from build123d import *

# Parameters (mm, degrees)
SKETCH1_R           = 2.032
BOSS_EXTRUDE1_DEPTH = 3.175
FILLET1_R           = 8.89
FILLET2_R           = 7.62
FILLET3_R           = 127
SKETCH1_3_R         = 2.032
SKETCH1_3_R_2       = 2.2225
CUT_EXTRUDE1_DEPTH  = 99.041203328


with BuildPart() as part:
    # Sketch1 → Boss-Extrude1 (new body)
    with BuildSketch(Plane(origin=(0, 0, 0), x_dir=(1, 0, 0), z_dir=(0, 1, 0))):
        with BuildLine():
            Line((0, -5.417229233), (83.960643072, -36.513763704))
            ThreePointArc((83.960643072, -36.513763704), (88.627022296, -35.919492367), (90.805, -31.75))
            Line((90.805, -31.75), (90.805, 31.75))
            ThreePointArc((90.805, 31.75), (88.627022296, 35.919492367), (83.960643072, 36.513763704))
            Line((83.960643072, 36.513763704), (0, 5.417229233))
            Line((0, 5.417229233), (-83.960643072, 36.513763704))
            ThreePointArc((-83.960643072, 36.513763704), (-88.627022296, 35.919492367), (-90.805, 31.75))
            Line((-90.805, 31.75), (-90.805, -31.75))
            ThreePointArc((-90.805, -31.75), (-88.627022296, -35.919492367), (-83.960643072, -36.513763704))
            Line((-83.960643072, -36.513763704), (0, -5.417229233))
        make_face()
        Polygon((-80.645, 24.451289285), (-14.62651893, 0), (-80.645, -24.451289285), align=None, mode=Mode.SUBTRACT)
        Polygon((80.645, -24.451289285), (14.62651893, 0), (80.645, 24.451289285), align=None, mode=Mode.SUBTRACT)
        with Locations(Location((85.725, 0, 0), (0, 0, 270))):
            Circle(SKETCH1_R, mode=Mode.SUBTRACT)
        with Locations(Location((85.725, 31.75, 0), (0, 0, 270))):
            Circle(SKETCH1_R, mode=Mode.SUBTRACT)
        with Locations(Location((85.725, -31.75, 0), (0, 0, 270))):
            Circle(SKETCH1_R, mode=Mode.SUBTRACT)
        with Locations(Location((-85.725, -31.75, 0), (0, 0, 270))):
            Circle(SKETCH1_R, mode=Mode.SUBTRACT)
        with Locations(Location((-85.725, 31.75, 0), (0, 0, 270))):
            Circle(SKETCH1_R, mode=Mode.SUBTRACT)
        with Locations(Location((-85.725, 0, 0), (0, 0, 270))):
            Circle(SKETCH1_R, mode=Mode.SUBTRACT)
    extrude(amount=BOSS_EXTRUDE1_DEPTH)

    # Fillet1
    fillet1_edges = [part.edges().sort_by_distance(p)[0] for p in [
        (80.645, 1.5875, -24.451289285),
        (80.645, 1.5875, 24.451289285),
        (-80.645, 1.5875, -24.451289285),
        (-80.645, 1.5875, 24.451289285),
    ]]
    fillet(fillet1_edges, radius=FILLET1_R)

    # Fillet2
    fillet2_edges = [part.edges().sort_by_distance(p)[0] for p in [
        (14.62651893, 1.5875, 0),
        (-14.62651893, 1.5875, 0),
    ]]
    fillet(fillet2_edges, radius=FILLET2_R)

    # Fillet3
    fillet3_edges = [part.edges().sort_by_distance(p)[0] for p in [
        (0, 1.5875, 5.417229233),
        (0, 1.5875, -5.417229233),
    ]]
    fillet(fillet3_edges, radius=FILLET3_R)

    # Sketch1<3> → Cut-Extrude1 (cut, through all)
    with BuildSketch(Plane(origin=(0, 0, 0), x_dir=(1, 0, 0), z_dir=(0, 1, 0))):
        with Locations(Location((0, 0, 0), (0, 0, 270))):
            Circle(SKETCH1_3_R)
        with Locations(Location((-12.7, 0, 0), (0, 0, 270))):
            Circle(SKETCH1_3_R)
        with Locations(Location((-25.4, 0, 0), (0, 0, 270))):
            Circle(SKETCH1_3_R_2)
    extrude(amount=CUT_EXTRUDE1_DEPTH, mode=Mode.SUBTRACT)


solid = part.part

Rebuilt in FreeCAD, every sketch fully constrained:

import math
import FreeCAD as App
import Part
import Sketcher

V = App.Vector
Q = App.Units.Quantity


def edges_at(feature, points):
    """Names of the edges that pass closest to the given points."""
    edges = feature.Shape.Edges
    near = lambda p: min(range(len(edges)), key=lambda i: edges[i].distToShape(Part.Vertex(*p))[0])
    return sorted({f"Edge{near(p) + 1}" for p in points})

doc = App.newDocument("Part")
body = doc.addObject("PartDesign::Body", "Body")

# Sketch on XZ plane
sketch1 = body.newObject("Sketcher::SketchObject", "Sketch")
sketch1.AttachmentSupport = (doc.getObject("XZ_Plane"), [""])
sketch1.MapMode = "FlatFace"
sketch1.addGeometry([
    Part.LineSegment(V(0, 5.4, 0), V(84, 36.5, 0)),  # 0
    Part.ArcOfCircle(Part.Circle(V(85.7, 31.8, 0), V(0, 0, 1), 5.1), math.radians(0), math.radians(110)),  # 1
    Part.LineSegment(V(90.8, 31.8, 0), V(90.8, -31.8, 0)),  # 2
    Part.ArcOfCircle(Part.Circle(V(85.7, -31.8, 0), V(0, 0, 1), 5.1), math.radians(-110), math.radians(0)),  # 3
    Part.LineSegment(V(84, -36.5, 0), V(0, -5.4, 0)),  # 4
    Part.LineSegment(V(0, -5.4, 0), V(-84, -36.5, 0)),  # 5
    Part.ArcOfCircle(Part.Circle(V(-85.7, -31.8, 0), V(0, 0, 1), 5.1), math.radians(180), math.radians(290)),  # 6
    Part.LineSegment(V(-90.8, -31.8, 0), V(-90.8, 31.8, 0)),  # 7
    Part.ArcOfCircle(Part.Circle(V(-85.7, 31.8, 0), V(0, 0, 1), 5.1), math.radians(70), math.radians(180)),  # 8
    Part.LineSegment(V(-84, 36.5, 0), V(0, 5.4, 0)),  # 9
    Part.Circle(V(-85.7, 31.8, 0), V(0, 0, 1), 2),  # 10
    Part.Circle(V(-85.7, 0, 0), V(0, 0, 1), 2),  # 11
    Part.LineSegment(V(-80.6, 24.5, 0), V(-80.6, -24.5, 0)),  # 12
    Part.LineSegment(V(-80.6, -24.5, 0), V(-14.6, 0, 0)),  # 13
    Part.LineSegment(V(-14.6, 0, 0), V(-80.6, 24.5, 0)),  # 14
    Part.Circle(V(85.7, 31.8, 0), V(0, 0, 1), 2),  # 15
    Part.LineSegment(V(80.6, -24.5, 0), V(80.6, 24.5, 0)),  # 16
    Part.LineSegment(V(80.6, 24.5, 0), V(14.6, 0, 0)),  # 17
    Part.LineSegment(V(14.6, 0, 0), V(80.6, -24.5, 0)),  # 18
    Part.Circle(V(85.7, 0, 0), V(0, 0, 1), 2),  # 19
    Part.Circle(V(-85.7, -31.8, 0), V(0, 0, 1), 2),  # 20
    Part.Circle(V(85.7, -31.8, 0), V(0, 0, 1), 2),  # 21
], False)
sketch1.addConstraint([
    Sketcher.Constraint("Tangent", 0, 2, 1, 2),
    Sketcher.Constraint("Tangent", 1, 1, 2, 1),
    Sketcher.Constraint("Tangent", 2, 2, 3, 2),
    Sketcher.Constraint("Tangent", 3, 1, 4, 1),
    Sketcher.Constraint("Coincident", 4, 2, 5, 1),
    Sketcher.Constraint("Tangent", 5, 2, 6, 2),
    Sketcher.Constraint("Tangent", 6, 1, 7, 1),
    Sketcher.Constraint("Tangent", 7, 2, 8, 2),
    Sketcher.Constraint("Tangent", 8, 1, 9, 1),
    Sketcher.Constraint("Coincident", 9, 2, 0, 1),
    Sketcher.Constraint("Coincident", 12, 2, 13, 1),
    Sketcher.Constraint("Coincident", 13, 2, 14, 1),
    Sketcher.Constraint("Coincident", 14, 2, 12, 1),
    Sketcher.Constraint("Coincident", 16, 2, 17, 1),
    Sketcher.Constraint("Coincident", 17, 2, 18, 1),
    Sketcher.Constraint("Coincident", 18, 2, 16, 1),
    Sketcher.Constraint("Vertical", 2),
    Sketcher.Constraint("Vertical", 7),
    Sketcher.Constraint("Vertical", 12),
    Sketcher.Constraint("Vertical", 16),
    Sketcher.Constraint("Coincident", 10, 3, 8, 3),
    Sketcher.Constraint("Coincident", 15, 3, 1, 3),
    Sketcher.Constraint("Coincident", 20, 3, 6, 3),
    Sketcher.Constraint("Coincident", 21, 3, 3, 3),
    Sketcher.Constraint("Equal", 1, 3),
    Sketcher.Constraint("Equal", 3, 6),
    Sketcher.Constraint("Equal", 6, 8),
    Sketcher.Constraint("Equal", 10, 11),
    Sketcher.Constraint("Equal", 11, 15),
    Sketcher.Constraint("Equal", 15, 19),
    Sketcher.Constraint("Equal", 19, 20),
    Sketcher.Constraint("Equal", 20, 21),
    Sketcher.Constraint("Symmetric", 1, 3, 6, 3, -1, 1),
    Sketcher.Constraint("Symmetric", 11, 3, 19, 3, -1, 1),
    Sketcher.Constraint("Symmetric", 3, 1, 8, 1, -1, 1),
    Sketcher.Constraint("Symmetric", 12, 2, 16, 2, -1, 1),
    Sketcher.Constraint("Symmetric", 13, 2, 17, 2, -1, 1),
    Sketcher.Constraint("Symmetric", 3, 1, 5, 2, -2),
    Sketcher.Constraint("PointOnObject", 11, 3, -1),
    Sketcher.Constraint("PointOnObject", 9, 2, -2),
    Sketcher.Constraint("PointOnObject", 13, 2, -1),
    Sketcher.Constraint("Parallel", 5, 13),
    Sketcher.Constraint("Parallel", 9, 14),
    Sketcher.Constraint("Parallel", 14, 18),
    Sketcher.Constraint("Vertical", 10, 3, 11, 3),
    Sketcher.Constraint("Radius", 1, Q("0.2 in")),
    Sketcher.Constraint("Diameter", 10, Q("0.16 in")),
    Sketcher.Constraint("DistanceY", 2, 2, 2, 1, Q("2.5 in")),
    Sketcher.Constraint("DistanceX", 20, 3, 12, 2, Q("0.2 in")),
    Sketcher.Constraint("DistanceX", 6, 3, 3, 3, Q("6.75 in")),
    Sketcher.Constraint("DistanceY", 12, 2, 12, 1, Q("48.902579 mm")),
    Sketcher.Constraint("Distance", 0, Q("89.534262 mm")),
])
pad1 = body.newObject("PartDesign::Pad", "Pad")
pad1.Profile = sketch1
pad1.Length = Q("0.125 in")
pad1.Reversed = True
doc.recompute()

fillet = body.newObject("PartDesign::Fillet", "Fillet")
fillet.Base = (pad1, edges_at(pad1, [
    (80.645, 1.587, -24.451),
    (80.645, 1.587, 24.451),
    (-80.645, 1.587, -24.451),
    (-80.645, 1.587, 24.451),
]))
fillet.Radius = Q("0.35 in")
doc.recompute()

fillet2 = body.newObject("PartDesign::Fillet", "Fillet001")
fillet2.Base = (fillet, edges_at(fillet, [(14.627, 1.587, 0), (-14.627, 1.587, 0)]))
fillet2.Radius = Q("0.3 in")
doc.recompute()

fillet3 = body.newObject("PartDesign::Fillet", "Fillet002")
fillet3.Base = (fillet2, edges_at(fillet2, [(0, 1.587, 5.417), (0, 1.587, -5.417)]))
fillet3.Radius = Q("5 in")

# Sketch on XZ plane
sketch2 = body.newObject("Sketcher::SketchObject", "Sketch001")
sketch2.AttachmentSupport = (doc.getObject("XZ_Plane"), [""])
sketch2.MapMode = "FlatFace"
sketch2.addGeometry([
    Part.Circle(V(0, 0, 0), V(0, 0, 1), 2),
    Part.Circle(V(-12.7, 0, 0), V(0, 0, 1), 2),
    Part.Circle(V(-25.4, 0, 0), V(0, 0, 1), 2.2),
], False)
sketch2.addConstraint([
    Sketcher.Constraint("Coincident", 0, 3, -1, 1),
    Sketcher.Constraint("Equal", 0, 1),
    Sketcher.Constraint("PointOnObject", 1, 3, -1),
    Sketcher.Constraint("PointOnObject", 2, 3, -1),
    Sketcher.Constraint("Diameter", 0, Q("0.16 in")),
    Sketcher.Constraint("Diameter", 2, Q("0.175 in")),
    Sketcher.Constraint("DistanceX", 2, 3, -1, 1, Q("1 in")),
    Sketcher.Constraint("DistanceX", 1, 3, -1, 1, Q("0.5 in")),
])
pocket1 = body.newObject("PartDesign::Pocket", "Pocket")
pocket1.Profile = sketch2
pocket1.Type = "ThroughAll"

doc.recompute()
